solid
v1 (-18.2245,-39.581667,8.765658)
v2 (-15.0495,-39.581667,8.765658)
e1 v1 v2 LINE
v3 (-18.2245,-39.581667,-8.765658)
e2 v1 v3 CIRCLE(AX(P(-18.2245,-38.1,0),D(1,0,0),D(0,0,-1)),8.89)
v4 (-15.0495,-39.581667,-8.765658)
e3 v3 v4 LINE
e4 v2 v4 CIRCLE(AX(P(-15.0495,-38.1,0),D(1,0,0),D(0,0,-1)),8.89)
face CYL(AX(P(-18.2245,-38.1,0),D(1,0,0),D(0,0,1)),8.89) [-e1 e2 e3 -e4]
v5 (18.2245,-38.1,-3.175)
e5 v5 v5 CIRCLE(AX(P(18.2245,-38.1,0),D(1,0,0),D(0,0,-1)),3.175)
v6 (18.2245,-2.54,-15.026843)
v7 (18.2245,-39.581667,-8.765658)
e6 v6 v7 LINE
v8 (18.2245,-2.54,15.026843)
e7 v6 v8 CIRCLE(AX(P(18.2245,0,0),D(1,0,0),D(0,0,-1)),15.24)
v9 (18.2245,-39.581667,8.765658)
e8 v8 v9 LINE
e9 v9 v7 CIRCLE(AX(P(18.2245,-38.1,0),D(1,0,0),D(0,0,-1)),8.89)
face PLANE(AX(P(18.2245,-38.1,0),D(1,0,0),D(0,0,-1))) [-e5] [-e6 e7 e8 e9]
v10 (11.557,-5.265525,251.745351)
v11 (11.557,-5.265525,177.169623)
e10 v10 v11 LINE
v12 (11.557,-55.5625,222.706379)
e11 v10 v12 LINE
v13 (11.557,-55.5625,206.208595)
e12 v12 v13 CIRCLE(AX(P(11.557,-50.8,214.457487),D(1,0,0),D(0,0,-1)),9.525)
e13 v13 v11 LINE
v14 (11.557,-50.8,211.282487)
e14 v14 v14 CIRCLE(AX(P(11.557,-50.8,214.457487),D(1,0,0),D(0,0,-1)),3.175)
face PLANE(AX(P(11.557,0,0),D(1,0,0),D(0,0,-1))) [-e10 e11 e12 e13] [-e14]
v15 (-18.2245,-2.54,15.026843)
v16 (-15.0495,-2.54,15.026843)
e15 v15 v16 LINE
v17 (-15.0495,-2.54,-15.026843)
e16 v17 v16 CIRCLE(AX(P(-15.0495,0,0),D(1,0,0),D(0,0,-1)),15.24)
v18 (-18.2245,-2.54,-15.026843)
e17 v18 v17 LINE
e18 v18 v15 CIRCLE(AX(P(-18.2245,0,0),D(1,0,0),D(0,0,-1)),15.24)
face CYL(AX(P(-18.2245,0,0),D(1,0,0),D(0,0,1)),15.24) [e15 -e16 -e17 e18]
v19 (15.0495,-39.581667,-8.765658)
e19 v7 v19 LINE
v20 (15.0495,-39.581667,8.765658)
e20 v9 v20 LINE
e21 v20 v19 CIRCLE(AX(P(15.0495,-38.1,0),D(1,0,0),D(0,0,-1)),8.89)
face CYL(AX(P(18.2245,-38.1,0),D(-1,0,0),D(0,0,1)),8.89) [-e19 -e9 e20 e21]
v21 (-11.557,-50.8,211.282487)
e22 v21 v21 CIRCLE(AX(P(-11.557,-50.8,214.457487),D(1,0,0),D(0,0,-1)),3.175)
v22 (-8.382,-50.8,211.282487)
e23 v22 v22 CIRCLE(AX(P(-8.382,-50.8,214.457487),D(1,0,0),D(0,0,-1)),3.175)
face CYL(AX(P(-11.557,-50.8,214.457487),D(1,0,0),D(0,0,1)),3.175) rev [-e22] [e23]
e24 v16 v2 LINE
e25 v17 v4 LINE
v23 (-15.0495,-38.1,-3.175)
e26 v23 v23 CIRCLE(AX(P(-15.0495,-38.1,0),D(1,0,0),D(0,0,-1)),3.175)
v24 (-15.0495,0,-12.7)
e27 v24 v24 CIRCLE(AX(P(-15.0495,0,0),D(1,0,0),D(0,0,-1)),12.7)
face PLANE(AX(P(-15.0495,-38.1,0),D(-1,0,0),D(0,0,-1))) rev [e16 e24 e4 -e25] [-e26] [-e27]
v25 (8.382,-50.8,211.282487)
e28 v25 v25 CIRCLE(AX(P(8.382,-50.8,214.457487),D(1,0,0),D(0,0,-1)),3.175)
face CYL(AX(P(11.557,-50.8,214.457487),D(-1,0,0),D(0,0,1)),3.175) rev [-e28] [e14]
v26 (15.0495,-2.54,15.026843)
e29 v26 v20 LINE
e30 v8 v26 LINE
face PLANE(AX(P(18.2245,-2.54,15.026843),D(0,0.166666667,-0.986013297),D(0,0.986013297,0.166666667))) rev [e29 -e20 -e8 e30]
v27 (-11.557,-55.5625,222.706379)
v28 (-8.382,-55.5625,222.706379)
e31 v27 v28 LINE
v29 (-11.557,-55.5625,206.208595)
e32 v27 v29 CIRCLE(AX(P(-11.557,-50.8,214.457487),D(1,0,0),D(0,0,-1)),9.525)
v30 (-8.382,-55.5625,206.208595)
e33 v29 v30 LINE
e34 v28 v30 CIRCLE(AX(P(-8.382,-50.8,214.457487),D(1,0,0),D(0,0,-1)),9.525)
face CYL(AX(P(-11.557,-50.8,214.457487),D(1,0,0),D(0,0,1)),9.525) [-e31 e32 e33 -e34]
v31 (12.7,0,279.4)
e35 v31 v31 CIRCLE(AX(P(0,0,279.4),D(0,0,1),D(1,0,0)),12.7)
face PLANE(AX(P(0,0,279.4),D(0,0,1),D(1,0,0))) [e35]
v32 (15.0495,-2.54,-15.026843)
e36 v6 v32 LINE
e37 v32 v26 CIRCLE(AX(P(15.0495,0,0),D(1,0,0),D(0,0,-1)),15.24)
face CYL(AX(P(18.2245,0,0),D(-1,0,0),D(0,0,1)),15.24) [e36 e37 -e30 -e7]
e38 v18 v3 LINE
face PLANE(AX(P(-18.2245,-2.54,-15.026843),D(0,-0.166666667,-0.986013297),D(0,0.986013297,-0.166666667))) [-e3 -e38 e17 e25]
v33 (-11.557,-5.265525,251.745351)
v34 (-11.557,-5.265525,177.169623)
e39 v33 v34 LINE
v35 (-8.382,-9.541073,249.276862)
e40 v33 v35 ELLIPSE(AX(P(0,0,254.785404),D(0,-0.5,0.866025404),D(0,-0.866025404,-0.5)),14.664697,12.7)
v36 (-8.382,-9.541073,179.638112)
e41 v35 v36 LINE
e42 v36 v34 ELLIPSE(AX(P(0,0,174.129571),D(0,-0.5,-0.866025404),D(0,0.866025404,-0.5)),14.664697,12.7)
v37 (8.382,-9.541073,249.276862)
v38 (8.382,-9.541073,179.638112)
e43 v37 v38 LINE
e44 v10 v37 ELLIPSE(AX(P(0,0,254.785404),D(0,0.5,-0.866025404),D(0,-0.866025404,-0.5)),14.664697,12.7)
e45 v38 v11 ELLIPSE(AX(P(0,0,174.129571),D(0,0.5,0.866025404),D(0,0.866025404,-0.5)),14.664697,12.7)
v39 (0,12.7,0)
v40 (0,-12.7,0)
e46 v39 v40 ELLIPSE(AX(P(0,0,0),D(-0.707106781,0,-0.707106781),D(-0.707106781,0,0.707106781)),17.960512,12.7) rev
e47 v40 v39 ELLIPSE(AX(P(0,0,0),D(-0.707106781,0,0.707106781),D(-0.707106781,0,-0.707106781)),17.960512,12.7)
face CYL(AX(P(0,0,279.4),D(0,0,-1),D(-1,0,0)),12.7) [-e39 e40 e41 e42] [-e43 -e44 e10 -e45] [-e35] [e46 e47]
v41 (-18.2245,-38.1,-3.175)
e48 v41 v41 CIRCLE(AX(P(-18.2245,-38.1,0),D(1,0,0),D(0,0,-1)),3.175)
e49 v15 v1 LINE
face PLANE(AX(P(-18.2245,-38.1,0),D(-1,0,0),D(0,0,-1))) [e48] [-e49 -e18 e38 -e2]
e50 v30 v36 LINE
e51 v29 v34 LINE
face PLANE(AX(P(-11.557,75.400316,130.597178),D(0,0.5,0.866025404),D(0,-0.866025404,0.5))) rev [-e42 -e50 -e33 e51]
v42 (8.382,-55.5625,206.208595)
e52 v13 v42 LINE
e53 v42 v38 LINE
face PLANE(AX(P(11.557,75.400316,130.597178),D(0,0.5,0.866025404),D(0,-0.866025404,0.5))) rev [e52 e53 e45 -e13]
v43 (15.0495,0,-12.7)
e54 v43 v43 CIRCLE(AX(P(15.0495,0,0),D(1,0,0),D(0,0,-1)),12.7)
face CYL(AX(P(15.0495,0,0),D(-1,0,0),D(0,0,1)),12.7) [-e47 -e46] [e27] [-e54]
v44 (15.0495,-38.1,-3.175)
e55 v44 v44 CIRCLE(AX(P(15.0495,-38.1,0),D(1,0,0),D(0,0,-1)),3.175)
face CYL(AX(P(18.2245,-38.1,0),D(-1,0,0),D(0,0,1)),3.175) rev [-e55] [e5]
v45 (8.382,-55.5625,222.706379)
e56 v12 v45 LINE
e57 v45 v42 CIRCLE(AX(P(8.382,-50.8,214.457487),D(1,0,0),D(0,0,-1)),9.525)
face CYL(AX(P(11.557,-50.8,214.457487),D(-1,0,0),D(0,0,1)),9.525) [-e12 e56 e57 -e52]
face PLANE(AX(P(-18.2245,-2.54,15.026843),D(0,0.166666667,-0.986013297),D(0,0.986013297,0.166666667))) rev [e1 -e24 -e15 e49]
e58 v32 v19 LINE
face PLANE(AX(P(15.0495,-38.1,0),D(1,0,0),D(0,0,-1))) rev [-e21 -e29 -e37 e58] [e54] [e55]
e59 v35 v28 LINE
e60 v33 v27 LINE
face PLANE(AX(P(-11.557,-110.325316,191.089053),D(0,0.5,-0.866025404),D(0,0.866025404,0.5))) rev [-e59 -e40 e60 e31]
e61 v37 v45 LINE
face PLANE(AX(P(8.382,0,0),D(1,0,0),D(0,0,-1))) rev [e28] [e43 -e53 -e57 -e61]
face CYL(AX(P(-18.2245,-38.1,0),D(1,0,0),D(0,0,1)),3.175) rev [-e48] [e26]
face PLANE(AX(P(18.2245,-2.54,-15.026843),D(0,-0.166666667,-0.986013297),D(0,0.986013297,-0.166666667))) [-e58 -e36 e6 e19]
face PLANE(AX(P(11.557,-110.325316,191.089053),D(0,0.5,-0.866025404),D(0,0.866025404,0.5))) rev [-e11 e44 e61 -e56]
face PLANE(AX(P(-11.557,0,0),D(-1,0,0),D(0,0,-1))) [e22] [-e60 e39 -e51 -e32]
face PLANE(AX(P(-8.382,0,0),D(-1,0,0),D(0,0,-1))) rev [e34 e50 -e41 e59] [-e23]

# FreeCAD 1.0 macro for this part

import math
import FreeCAD as App
import Part
import Sketcher
from FreeCAD import Vector
Q = App.Units.Quantity

doc = App.newDocument("Part")
params = doc.addObject("Spreadsheet::Sheet", "Params")
for row, (alias, value) in enumerate([
    ("sketch1_diameter", "1 in"),
    ("pad1_length", "1.185 in"),
    ("sketch2_radius", "0.6 in"),
    ("sketch2_diameter", "0.25 in"),
    ("sketch2_radius2", "0.35 in"),
    ("pad2_length", "0.125 in"),
    ("sketch3_diameter", "0.25 in"),
    ("sketch3_radius", "0.375 in"),
    ("pad3_length", "0.125 in"),
    ("sketch4_diameter", "1 in"),
    ("pad4_length", "11 in"),
], start=1):
    params.set(f"A{row}", alias)
    params.set(f"B{row}", "=" + value)
    params.setAlias(f"B{row}", alias)

body = doc.addObject("PartDesign::Body", "Body")

# Sketch on YZ plane
sketch1 = body.newObject("Sketcher::SketchObject", "Sketch")
sketch1.AttachmentSupport = (doc.getObject("YZ_Plane"), [""])
sketch1.MapMode = "FlatFace"
sketch1.addGeometry(Part.Circle(Vector(0, 0, 0), Vector(0, 0, 1), 13), False)
sketch1.addConstraint([
    Sketcher.Constraint("Coincident", 0, 3, -1, 1),
    Sketcher.Constraint("Diameter", 0, Q("1 in")),
])
sketch1.setExpression("Constraints[1]", "Params.sketch1_diameter")
pad1 = body.newObject("PartDesign::Pad", "Pad")
pad1.Profile = sketch1
pad1.setExpression("Length", "Params.pad1_length")
pad1.Midplane = True

# Sketch on YZ plane
sketch2 = body.newObject("Sketcher::SketchObject", "Sketch001")
sketch2.AttachmentSupport = (doc.getObject("YZ_Plane"), [""])
sketch2.MapMode = "FlatFace"
sketch2.AttachmentOffset = App.Placement(Vector(0, 0, 0.7175 * 25.4), App.Rotation())
sketch2.addGeometry([
    Part.LineSegment(Vector(-2.5, 15, 0), Vector(-39.6, 8.8, 0)),  # 0
    Part.ArcOfCircle(Part.Circle(Vector(-38.1, 0, 0), Vector(0, 0, 1), 8.9), math.radians(100), math.radians(260)),  # 1
    Part.LineSegment(Vector(-39.6, -8.8, 0), Vector(-2.5, -15, 0)),  # 2
    Part.ArcOfCircle(Part.Circle(Vector(0, 0, 0), Vector(0, 0, 1), 15.2), math.radians(-100), math.radians(100)),  # 3
    Part.Circle(Vector(-38.1, 0, 0), Vector(0, 0, 1), 3.2),  # 4
], False)
sketch2.addConstraint([
    Sketcher.Constraint("Tangent", 0, 2, 1, 1),
    Sketcher.Constraint("Tangent", 1, 2, 2, 1),
    Sketcher.Constraint("Tangent", 2, 2, 3, 1),
    Sketcher.Constraint("Tangent", 3, 2, 0, 1),
    Sketcher.Constraint("Coincident", 3, 3, -1, 1),
    Sketcher.Constraint("Coincident", 4, 3, 1, 3),
    Sketcher.Constraint("PointOnObject", 1, 3, -1),
    Sketcher.Constraint("Radius", 3, Q("0.6 in")),
    Sketcher.Constraint("Diameter", 4, Q("0.25 in")),
    Sketcher.Constraint("Radius", 1, Q("0.35 in")),
    Sketcher.Constraint("DistanceX", 1, 3, -1, 1, Q("1.5 in")),
])
sketch2.setExpression("Constraints[7]", "Params.sketch2_radius")
sketch2.setExpression("Constraints[8]", "Params.sketch2_diameter")
sketch2.setExpression("Constraints[9]", "Params.sketch2_radius2")
pad2 = body.newObject("PartDesign::Pad", "Pad001")
pad2.Profile = sketch2
pad2.setExpression("Length", "Params.pad2_length")
pad2.Reversed = True
body2 = doc.addObject("PartDesign::Body", "Body001")

# Sketch on YZ plane
sketch3 = body2.newObject("Sketcher::SketchObject", "Sketch002")
sketch3.AttachmentSupport = (doc.getObject("YZ_Plane001"), [""])
sketch3.MapMode = "FlatFace"
sketch3.AttachmentOffset = App.Placement(Vector(0, 0, 0.33 * 25.4), App.Rotation())
sketch3.addGeometry([
    Part.LineSegment(Vector(-55.6, 206.2, 0), Vector(0, 174.1, 0)),  # 0
    Part.LineSegment(Vector(0, 174.1, 0), Vector(0, 254.8, 0)),  # 1
    Part.LineSegment(Vector(0, 254.8, 0), Vector(-55.6, 222.7, 0)),  # 2
    Part.ArcOfCircle(Part.Circle(Vector(-50.8, 214.5, 0), Vector(0, 0, 1), 9.5), math.radians(120), math.radians(240)),  # 3
    Part.Circle(Vector(-50.8, 214.5, 0), Vector(0, 0, 1), 3.2),  # 4
], False)
sketch3.addConstraint([
    Sketcher.Constraint("Coincident", 0, 2, 1, 1),
    Sketcher.Constraint("Coincident", 1, 2, 2, 1),
    Sketcher.Constraint("Tangent", 2, 2, 3, 1),
    Sketcher.Constraint("Tangent", 3, 2, 0, 1),
    Sketcher.Constraint("Vertical", 1),
    Sketcher.Constraint("Coincident", 4, 3, 3, 3),
    Sketcher.Constraint("PointOnObject", 0, 2, -2),
    Sketcher.Constraint("Vertical", 2, 2, 3, 2),
    Sketcher.Constraint("Diameter", 4, Q("0.25 in")),
    Sketcher.Constraint("DistanceX", 3, 3, -1, 1, Q("2 in")),
    Sketcher.Constraint("Angle", 0, Q("-30 deg")),
    Sketcher.Constraint("Radius", 3, Q("0.375 in")),
    Sketcher.Constraint("DistanceY", -1, 1, 0, 2, 174.129571),
])
sketch3.setExpression("Constraints[8]", "Params.sketch3_diameter")
sketch3.setExpression("Constraints[11]", "Params.sketch3_radius")
pad3 = body2.newObject("PartDesign::Pad", "Pad002")
pad3.Profile = sketch3
pad3.setExpression("Length", "Params.pad3_length")
body.AllowCompound = True
doc.recompute()

boolean = body.newObject("PartDesign::Boolean", "Boolean")
boolean.Type = "Fuse"
boolean.addObjects([body2])

# Sketch on XY plane
sketch4 = body.newObject("Sketcher::SketchObject", "Sketch003")
sketch4.AttachmentSupport = (doc.getObject("XY_Plane"), [""])
sketch4.MapMode = "FlatFace"
sketch4.addGeometry(Part.Circle(Vector(0, 0, 0), Vector(0, 0, 1), 13), False)
sketch4.addConstraint([
    Sketcher.Constraint("Coincident", 0, 3, -1, 1),
    Sketcher.Constraint("Diameter", 0, Q("1 in")),
])
sketch4.setExpression("Constraints[1]", "Params.sketch4_diameter")
pad4 = body.newObject("PartDesign::Pad", "Pad003")
pad4.Profile = sketch4
pad4.setExpression("Length", "Params.pad4_length")
body3 = doc.addObject("PartDesign::Body", "Body002")
doc.recompute()

body3.BaseFeature = body
doc.recompute()

mirroring = doc.addObject("Part::Mirroring", "Mirroring")
mirroring.Source = body
mirroring.Base = Vector(0, 0, 0)
mirroring.Normal = Vector(1, 0, 0)
body4 = doc.addObject("PartDesign::Body", "Body003")
body4.BaseFeature = mirroring
boolean2 = body3.newObject("PartDesign::Boolean", "Boolean001")
boolean2.Type = "Fuse"
boolean2.addObjects([body4])
doc.recompute()
mirroring.Visibility = False

doc.recompute()
